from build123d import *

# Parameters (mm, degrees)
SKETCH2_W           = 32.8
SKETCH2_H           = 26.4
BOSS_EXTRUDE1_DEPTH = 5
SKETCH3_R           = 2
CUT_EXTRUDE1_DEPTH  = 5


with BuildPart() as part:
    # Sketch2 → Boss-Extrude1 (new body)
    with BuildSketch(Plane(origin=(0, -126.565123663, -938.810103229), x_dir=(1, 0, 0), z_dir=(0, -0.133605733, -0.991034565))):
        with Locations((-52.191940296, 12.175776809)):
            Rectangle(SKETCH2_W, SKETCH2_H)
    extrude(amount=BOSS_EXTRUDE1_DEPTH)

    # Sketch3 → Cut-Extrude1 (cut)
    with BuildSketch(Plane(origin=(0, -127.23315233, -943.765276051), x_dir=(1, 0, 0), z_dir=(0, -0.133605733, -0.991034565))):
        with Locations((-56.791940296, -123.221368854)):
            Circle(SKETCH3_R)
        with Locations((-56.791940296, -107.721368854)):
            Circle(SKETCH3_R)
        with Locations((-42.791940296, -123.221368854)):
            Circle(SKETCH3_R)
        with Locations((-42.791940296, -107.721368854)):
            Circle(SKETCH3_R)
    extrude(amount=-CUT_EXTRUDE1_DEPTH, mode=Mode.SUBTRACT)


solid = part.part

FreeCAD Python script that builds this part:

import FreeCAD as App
import Part
import Sketcher

V = App.Vector
Q = App.Units.Quantity


def add_polygon(sketch, points):
    """Adds a closed chain of lines whose ends are joined by coincident constraints."""
    first, n = sketch.GeometryCount, len(points)
    for a, b in zip(points, points[1:] + points[:1]):
        sketch.addGeometry(Part.LineSegment(App.Vector(*a, 0), App.Vector(*b, 0)), False)
    for i in range(n):
        sketch.addConstraint(Sketcher.Constraint("Coincident", first + i, 2, first + (i + 1) % n, 1))

doc = App.newDocument("Part")
body = doc.addObject("PartDesign::Body", "Body")

# Sketch on an angled plane
sketch1 = body.newObject("Sketcher::SketchObject", "Sketch")
sketch1.Placement = App.Placement(V(0, -126.565124, -938.810103), App.Rotation(V(1, 0, 0), V(0, -0.991034565, 0.133605733), V(0, -0.133605733, -0.991034565), "ZXY"))
add_polygon(sketch1, [(-69, 25), (-69, -1), (-36, -1), (-36, 25)])  # lines 0-3
sketch1.addConstraint([
    Sketcher.Constraint("Vertical", 0),
    Sketcher.Constraint("Horizontal", 1),
    Sketcher.Constraint("Vertical", 2),
    Sketcher.Constraint("Horizontal", 3),
    Sketcher.Constraint("DistanceX", 1, 1, 1, 2, Q("32.8 mm")),
    Sketcher.Constraint("DistanceY", 0, 2, 0, 1, Q("26.4 mm")),
    Sketcher.Constraint("DistanceX", 0, 2, -1, 1, Q("68.59194 mm")),
    Sketcher.Constraint("DistanceY", 0, 2, -1, 1, Q("1.024223 mm")),
])
pad1 = body.newObject("PartDesign::Pad", "Pad")
pad1.Profile = sketch1
pad1.Length = 5

# Sketch on an angled plane
sketch2 = body.newObject("Sketcher::SketchObject", "Sketch001")
sketch2.Placement = App.Placement(V(0, -127.233152, -943.765276), App.Rotation(V(1, 0, 0), V(0, -0.991034565, 0.133605733), V(0, -0.133605733, -0.991034565), "ZXY"))
sketch2.addGeometry([
    Part.Circle(V(-56.8, -123.2, 0), V(0, 0, 1), 2),
    Part.Circle(V(-56.8, -107.7, 0), V(0, 0, 1), 2),
    Part.Circle(V(-42.8, -123.2, 0), V(0, 0, 1), 2),
    Part.Circle(V(-42.8, -107.7, 0), V(0, 0, 1), 2),
], False)
sketch2.addConstraint([
    Sketcher.Constraint("Equal", 0, 1),
    Sketcher.Constraint("Equal", 1, 2),
    Sketcher.Constraint("Equal", 2, 3),
    Sketcher.Constraint("Horizontal", 0, 3, 2, 3),
    Sketcher.Constraint("Horizontal", 1, 3, 3, 3),
    Sketcher.Constraint("Vertical", 0, 3, 1, 3),
    Sketcher.Constraint("Vertical", 2, 3, 3, 3),
    Sketcher.Constraint("Diameter", 0, Q("4 mm")),
    Sketcher.Constraint("DistanceX", 0, 3, 2, 3, Q("14 mm")),
    Sketcher.Constraint("DistanceY", 0, 3, 1, 3, Q("15.5 mm")),
    Sketcher.Constraint("DistanceX", 0, 3, -1, 1, Q("56.79194 mm")),
    Sketcher.Constraint("DistanceY", 0, 3, -1, 1, Q("123.221369 mm")),
])
pocket1 = body.newObject("PartDesign::Pocket", "Pocket")
pocket1.Profile = sketch2
pocket1.Length = 5

doc.recompute()
